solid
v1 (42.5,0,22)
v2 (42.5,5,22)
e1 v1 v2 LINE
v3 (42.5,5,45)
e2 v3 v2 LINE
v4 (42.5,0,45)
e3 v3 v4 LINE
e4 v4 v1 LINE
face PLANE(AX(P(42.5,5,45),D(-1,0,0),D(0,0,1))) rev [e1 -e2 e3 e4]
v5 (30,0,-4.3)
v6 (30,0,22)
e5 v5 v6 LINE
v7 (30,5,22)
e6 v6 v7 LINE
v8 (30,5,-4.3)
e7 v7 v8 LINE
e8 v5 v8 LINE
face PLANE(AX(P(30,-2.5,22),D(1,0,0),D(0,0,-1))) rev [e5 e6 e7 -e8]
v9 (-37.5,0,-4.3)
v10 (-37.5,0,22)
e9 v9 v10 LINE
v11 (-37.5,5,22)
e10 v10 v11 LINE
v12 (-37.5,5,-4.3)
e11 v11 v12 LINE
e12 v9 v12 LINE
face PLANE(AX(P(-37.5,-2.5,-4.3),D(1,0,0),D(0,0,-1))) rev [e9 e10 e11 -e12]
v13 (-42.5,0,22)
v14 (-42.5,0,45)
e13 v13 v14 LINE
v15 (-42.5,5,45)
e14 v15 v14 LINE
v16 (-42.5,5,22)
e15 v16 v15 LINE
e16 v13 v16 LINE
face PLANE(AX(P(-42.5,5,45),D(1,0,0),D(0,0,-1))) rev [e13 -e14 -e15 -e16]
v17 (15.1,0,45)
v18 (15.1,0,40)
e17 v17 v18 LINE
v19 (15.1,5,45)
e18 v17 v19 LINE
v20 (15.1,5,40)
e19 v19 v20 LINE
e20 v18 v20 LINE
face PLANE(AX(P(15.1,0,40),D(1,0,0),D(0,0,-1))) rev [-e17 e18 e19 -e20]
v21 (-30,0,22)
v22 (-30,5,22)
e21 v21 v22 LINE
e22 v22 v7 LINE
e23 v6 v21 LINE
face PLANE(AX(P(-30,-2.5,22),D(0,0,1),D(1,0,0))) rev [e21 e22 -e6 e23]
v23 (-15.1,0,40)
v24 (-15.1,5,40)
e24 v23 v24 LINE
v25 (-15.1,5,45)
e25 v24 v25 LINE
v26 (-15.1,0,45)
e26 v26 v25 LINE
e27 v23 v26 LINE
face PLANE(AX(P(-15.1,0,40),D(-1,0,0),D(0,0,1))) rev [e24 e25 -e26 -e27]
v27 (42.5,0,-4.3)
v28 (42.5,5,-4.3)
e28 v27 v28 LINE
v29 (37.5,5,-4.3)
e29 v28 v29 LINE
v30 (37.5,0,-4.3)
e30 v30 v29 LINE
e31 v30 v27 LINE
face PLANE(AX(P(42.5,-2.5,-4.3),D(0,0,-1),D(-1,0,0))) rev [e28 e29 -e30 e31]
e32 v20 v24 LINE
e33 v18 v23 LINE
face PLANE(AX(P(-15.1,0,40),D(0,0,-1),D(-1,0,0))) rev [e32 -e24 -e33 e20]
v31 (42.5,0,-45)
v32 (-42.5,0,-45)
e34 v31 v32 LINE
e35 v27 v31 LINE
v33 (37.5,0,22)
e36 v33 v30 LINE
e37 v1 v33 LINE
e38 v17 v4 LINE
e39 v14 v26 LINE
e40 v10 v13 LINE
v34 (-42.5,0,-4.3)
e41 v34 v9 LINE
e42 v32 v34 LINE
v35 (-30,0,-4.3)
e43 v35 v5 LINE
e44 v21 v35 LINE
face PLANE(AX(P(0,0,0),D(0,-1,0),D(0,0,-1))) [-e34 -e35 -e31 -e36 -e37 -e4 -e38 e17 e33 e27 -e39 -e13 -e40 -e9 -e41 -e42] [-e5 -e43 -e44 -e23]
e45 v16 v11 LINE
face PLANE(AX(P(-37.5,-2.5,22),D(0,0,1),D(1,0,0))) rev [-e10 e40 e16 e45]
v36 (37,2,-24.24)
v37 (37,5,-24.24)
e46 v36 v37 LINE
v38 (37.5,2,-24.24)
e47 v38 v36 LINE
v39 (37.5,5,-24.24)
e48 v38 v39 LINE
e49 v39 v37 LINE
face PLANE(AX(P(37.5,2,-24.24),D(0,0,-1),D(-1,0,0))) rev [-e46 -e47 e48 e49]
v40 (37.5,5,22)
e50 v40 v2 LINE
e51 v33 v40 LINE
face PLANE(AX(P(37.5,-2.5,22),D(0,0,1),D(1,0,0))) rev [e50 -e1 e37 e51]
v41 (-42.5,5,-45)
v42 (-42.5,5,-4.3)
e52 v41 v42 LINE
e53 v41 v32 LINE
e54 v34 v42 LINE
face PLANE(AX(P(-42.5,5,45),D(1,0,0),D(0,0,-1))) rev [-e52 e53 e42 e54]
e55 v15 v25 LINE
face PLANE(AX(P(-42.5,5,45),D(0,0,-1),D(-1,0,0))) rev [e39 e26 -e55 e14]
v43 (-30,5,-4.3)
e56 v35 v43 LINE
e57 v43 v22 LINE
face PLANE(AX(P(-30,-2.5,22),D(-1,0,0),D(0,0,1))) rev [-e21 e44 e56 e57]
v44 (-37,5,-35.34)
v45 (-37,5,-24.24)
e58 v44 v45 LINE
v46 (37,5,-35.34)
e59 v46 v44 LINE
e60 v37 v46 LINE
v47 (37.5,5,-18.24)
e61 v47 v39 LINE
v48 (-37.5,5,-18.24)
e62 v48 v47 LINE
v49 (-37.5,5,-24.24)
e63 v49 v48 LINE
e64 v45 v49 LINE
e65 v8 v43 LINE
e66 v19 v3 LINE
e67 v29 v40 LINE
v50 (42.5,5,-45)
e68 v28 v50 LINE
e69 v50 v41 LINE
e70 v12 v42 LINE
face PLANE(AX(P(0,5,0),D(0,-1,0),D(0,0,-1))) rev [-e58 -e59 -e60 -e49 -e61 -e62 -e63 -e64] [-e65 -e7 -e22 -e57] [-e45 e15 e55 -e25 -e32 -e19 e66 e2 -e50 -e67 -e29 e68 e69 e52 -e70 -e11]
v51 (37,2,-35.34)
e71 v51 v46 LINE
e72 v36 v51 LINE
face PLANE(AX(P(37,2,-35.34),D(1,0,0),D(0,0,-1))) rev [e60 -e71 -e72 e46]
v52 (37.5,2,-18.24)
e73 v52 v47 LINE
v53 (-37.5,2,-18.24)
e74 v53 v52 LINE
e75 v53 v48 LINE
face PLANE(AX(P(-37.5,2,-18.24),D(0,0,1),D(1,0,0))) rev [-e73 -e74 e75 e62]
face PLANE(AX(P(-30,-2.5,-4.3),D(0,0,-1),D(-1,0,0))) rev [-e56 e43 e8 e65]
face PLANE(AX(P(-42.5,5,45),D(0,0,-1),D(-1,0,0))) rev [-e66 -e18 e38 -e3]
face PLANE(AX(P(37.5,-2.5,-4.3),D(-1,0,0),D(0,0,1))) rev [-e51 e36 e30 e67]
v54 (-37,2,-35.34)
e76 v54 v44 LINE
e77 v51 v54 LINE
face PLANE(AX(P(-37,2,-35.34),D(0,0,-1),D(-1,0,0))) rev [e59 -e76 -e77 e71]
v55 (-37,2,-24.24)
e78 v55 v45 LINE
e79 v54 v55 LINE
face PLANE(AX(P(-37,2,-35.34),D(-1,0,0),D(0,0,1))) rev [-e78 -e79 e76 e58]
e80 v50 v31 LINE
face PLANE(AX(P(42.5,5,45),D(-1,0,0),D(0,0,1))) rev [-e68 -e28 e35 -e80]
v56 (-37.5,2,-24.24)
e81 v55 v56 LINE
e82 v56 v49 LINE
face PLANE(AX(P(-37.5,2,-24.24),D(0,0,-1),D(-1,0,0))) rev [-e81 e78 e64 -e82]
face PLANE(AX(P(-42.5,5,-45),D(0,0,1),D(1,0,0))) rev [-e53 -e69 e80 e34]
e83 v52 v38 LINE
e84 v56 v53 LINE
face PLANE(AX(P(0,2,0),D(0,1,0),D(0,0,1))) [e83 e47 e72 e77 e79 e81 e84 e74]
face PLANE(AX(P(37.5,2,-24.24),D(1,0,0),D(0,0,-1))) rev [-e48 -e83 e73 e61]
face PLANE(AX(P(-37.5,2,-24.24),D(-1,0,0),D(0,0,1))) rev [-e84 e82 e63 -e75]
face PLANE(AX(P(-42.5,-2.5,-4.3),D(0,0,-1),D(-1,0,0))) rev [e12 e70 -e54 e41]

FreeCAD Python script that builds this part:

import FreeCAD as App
import Part
import Sketcher

doc = App.newDocument("Part")
body = doc.addObject("PartDesign::Body", "Body")

sketch1 = doc.addObject("Sketcher::SketchObject", "Sketch")
body.addObject(sketch1)
sketch1.AttachmentSupport = (doc.XZ_Plane, [""])
sketch1.MapMode = "FlatFace"
sketch1.addGeometry([
    Part.LineSegment(App.Vector(-42.5, -45, 0), App.Vector(-42.5, 45, 0)),
    Part.LineSegment(App.Vector(-42.5, 45, 0), App.Vector(42.5, 45, 0)),
    Part.LineSegment(App.Vector(42.5, 45, 0), App.Vector(42.5, -45, 0)),
    Part.LineSegment(App.Vector(42.5, -45, 0), App.Vector(-42.5, -45, 0)),
], False)
sketch1.addConstraint([
    Sketcher.Constraint("Coincident", 0, 2, 1, 1),
    Sketcher.Constraint("Coincident", 1, 2, 2, 1),
    Sketcher.Constraint("Coincident", 2, 2, 3, 1),
    Sketcher.Constraint("Coincident", 3, 2, 0, 1),
    Sketcher.Constraint("Vertical", 0),
    Sketcher.Constraint("Horizontal", 1),
    Sketcher.Constraint("Vertical", 2),
    Sketcher.Constraint("Horizontal", 3),
    Sketcher.Constraint("Symmetric", 0, 2, 2, 2, -1, 1),
    Sketcher.Constraint("DistanceX", 1, 1, 1, 2, 85.0),
    Sketcher.Constraint("DistanceY", 0, 1, 0, 2, 90.0),
])
pad1 = doc.addObject("PartDesign::Pad", "Pad")
body.addObject(pad1)
pad1.Profile = sketch1
pad1.Length = 5
pad1.Reversed = True

sketch2 = doc.addObject("Sketcher::SketchObject", "Sketch001")
body.addObject(sketch2)
sketch2.AttachmentSupport = (doc.XZ_Plane, [""])
sketch2.MapMode = "FlatFace"
sketch2.AttachmentOffset = App.Placement(App.Vector(0, 0, -5), App.Rotation())
sketch2.addGeometry([
    Part.LineSegment(App.Vector(-30, -4.3, 0), App.Vector(-30, 22, 0)),
    Part.LineSegment(App.Vector(-30, 22, 0), App.Vector(30, 22, 0)),
    Part.LineSegment(App.Vector(30, 22, 0), App.Vector(30, -4.3, 0)),
    Part.LineSegment(App.Vector(30, -4.3, 0), App.Vector(-30, -4.3, 0)),
], False)
sketch2.addConstraint([
    Sketcher.Constraint("Coincident", 0, 2, 1, 1),
    Sketcher.Constraint("Coincident", 1, 2, 2, 1),
    Sketcher.Constraint("Coincident", 2, 2, 3, 1),
    Sketcher.Constraint("Coincident", 3, 2, 0, 1),
    Sketcher.Constraint("Vertical", 0),
    Sketcher.Constraint("Horizontal", 1),
    Sketcher.Constraint("Vertical", 2),
    Sketcher.Constraint("Horizontal", 3),
    Sketcher.Constraint("DistanceX", 1, 1, 1, 2, 60.0),
    Sketcher.Constraint("DistanceY", 0, 1, 0, 2, 26.3),
    Sketcher.Constraint("DistanceX", 0, 2, -1, 1, 30.0),
    Sketcher.Constraint("DistanceY", -1, 1, 0, 2, 22.0),
])
pocket1 = doc.addObject("PartDesign::Pocket", "Pocket")
body.addObject(pocket1)
pocket1.Profile = sketch2
pocket1.Length = 7.5
pocket1.Reversed = True

sketch3 = doc.addObject("Sketcher::SketchObject", "Sketch002")
body.addObject(sketch3)
sketch3.AttachmentSupport = (doc.XZ_Plane, [""])
sketch3.MapMode = "FlatFace"
sketch3.AttachmentOffset = App.Placement(App.Vector(0, 0, -5), App.Rotation())
sketch3.addGeometry([
    Part.LineSegment(App.Vector(-42.5, -4.3, 0), App.Vector(-42.5, 22, 0)),
    Part.LineSegment(App.Vector(-42.5, 22, 0), App.Vector(-37.5, 22, 0)),
    Part.LineSegment(App.Vector(-37.5, 22, 0), App.Vector(-37.5, -4.3, 0)),
    Part.LineSegment(App.Vector(-37.5, -4.3, 0), App.Vector(-42.5, -4.3, 0)),
    Part.LineSegment(App.Vector(37.5, -4.3, 0), App.Vector(37.5, 22, 0)),
    Part.LineSegment(App.Vector(37.5, 22, 0), App.Vector(42.5, 22, 0)),
    Part.LineSegment(App.Vector(42.5, 22, 0), App.Vector(42.5, -4.3, 0)),
    Part.LineSegment(App.Vector(42.5, -4.3, 0), App.Vector(37.5, -4.3, 0)),
], False)
sketch3.addConstraint([
    Sketcher.Constraint("Coincident", 0, 2, 1, 1),
    Sketcher.Constraint("Coincident", 1, 2, 2, 1),
    Sketcher.Constraint("Coincident", 2, 2, 3, 1),
    Sketcher.Constraint("Coincident", 3, 2, 0, 1),
    Sketcher.Constraint("Coincident", 4, 2, 5, 1),
    Sketcher.Constraint("Coincident", 5, 2, 6, 1),
    Sketcher.Constraint("Coincident", 6, 2, 7, 1),
    Sketcher.Constraint("Coincident", 7, 2, 4, 1),
    Sketcher.Constraint("Vertical", 0),
    Sketcher.Constraint("Horizontal", 1),
    Sketcher.Constraint("Vertical", 2),
    Sketcher.Constraint("Horizontal", 3),
    Sketcher.Constraint("Vertical", 4),
    Sketcher.Constraint("Horizontal", 5),
    Sketcher.Constraint("Vertical", 6),
    Sketcher.Constraint("Horizontal", 7),
    Sketcher.Constraint("Symmetric", 1, 2, 4, 2, -2),
    Sketcher.Constraint("Symmetric", 3, 2, 6, 2, -2),
    Sketcher.Constraint("DistanceX", 1, 1, 1, 2, 5.0),
    Sketcher.Constraint("DistanceY", 0, 1, 0, 2, 26.3),
    Sketcher.Constraint("DistanceY", -1, 1, 0, 2, 22.0),
    Sketcher.Constraint("DistanceX", 1, 2, 4, 2, 75.0),
])
pocket2 = doc.addObject("PartDesign::Pocket", "Pocket001")
body.addObject(pocket2)
pocket2.Profile = sketch3
pocket2.Length = 7.5
pocket2.Reversed = True

sketch4 = doc.addObject("Sketcher::SketchObject", "Sketch003")
body.addObject(sketch4)
sketch4.AttachmentSupport = (doc.XZ_Plane, [""])
sketch4.MapMode = "FlatFace"
sketch4.AttachmentOffset = App.Placement(App.Vector(0, 0, -5), App.Rotation())
sketch4.addGeometry([
    Part.LineSegment(App.Vector(-15.1, 40, 0), App.Vector(-15.1, 45, 0)),
    Part.LineSegment(App.Vector(-15.1, 45, 0), App.Vector(15.1, 45, 0)),
    Part.LineSegment(App.Vector(15.1, 45, 0), App.Vector(15.1, 40, 0)),
    Part.LineSegment(App.Vector(15.1, 40, 0), App.Vector(-15.1, 40, 0)),
], False)
sketch4.addConstraint([
    Sketcher.Constraint("Coincident", 0, 2, 1, 1),
    Sketcher.Constraint("Coincident", 1, 2, 2, 1),
    Sketcher.Constraint("Coincident", 2, 2, 3, 1),
    Sketcher.Constraint("Coincident", 3, 2, 0, 1),
    Sketcher.Constraint("Vertical", 0),
    Sketcher.Constraint("Horizontal", 1),
    Sketcher.Constraint("Vertical", 2),
    Sketcher.Constraint("Horizontal", 3),
    Sketcher.Constraint("DistanceY", 0, 1, 0, 2, 5.0),
    Sketcher.Constraint("DistanceX", 1, 1, 1, 2, 30.2),
    Sketcher.Constraint("DistanceY", -1, 1, 0, 2, 45.0),
    Sketcher.Constraint("DistanceX", 0, 2, -1, 1, 15.1),
])
pocket3 = doc.addObject("PartDesign::Pocket", "Pocket002")
body.addObject(pocket3)
pocket3.Profile = sketch4
pocket3.Length = 5
pocket3.Reversed = True

sketch5 = doc.addObject("Sketcher::SketchObject", "Sketch004")
body.addObject(sketch5)
sketch5.AttachmentSupport = (doc.XZ_Plane, [""])
sketch5.MapMode = "FlatFace"
sketch5.AttachmentOffset = App.Placement(App.Vector(0, 0, -5), App.Rotation())
sketch5.addGeometry([
    Part.LineSegment(App.Vector(37, -35.34, 0), App.Vector(-37, -35.34, 0)),
    Part.LineSegment(App.Vector(-37, -35.34, 0), App.Vector(-37, -24.24, 0)),
    Part.LineSegment(App.Vector(-37, -24.24, 0), App.Vector(-37.5, -24.24, 0)),
    Part.LineSegment(App.Vector(-37.5, -24.24, 0), App.Vector(-37.5, -18.24, 0)),
    Part.LineSegment(App.Vector(-37.5, -18.24, 0), App.Vector(37.5, -18.24, 0)),
    Part.LineSegment(App.Vector(37.5, -18.24, 0), App.Vector(37.5, -24.24, 0)),
    Part.LineSegment(App.Vector(37.5, -24.24, 0), App.Vector(37, -24.24, 0)),
    Part.LineSegment(App.Vector(37, -24.24, 0), App.Vector(37, -35.34, 0)),
], False)
sketch5.addConstraint([
    Sketcher.Constraint("Coincident", 0, 2, 1, 1),
    Sketcher.Constraint("Coincident", 1, 2, 2, 1),
    Sketcher.Constraint("Coincident", 2, 2, 3, 1),
    Sketcher.Constraint("Coincident", 3, 2, 4, 1),
    Sketcher.Constraint("Coincident", 4, 2, 5, 1),
    Sketcher.Constraint("Coincident", 5, 2, 6, 1),
    Sketcher.Constraint("Coincident", 6, 2, 7, 1),
    Sketcher.Constraint("Coincident", 7, 2, 0, 1),
    Sketcher.Constraint("Horizontal", 0),
    Sketcher.Constraint("Vertical", 1),
    Sketcher.Constraint("Horizontal", 2),
    Sketcher.Constraint("Vertical", 3),
    Sketcher.Constraint("Horizontal", 4),
    Sketcher.Constraint("Vertical", 5),
    Sketcher.Constraint("Horizontal", 6),
    Sketcher.Constraint("Vertical", 7),
    Sketcher.Constraint("Symmetric", 2, 2, 5, 2, -2),
    Sketcher.Constraint("Equal", 2, 6),
    Sketcher.Constraint("DistanceX", 0, 2, 0, 1, 74.0),
    Sketcher.Constraint("DistanceX", 4, 1, 4, 2, 75.0),
    Sketcher.Constraint("DistanceY", 3, 1, 3, 2, 6.0),
    Sketcher.Constraint("DistanceY", 1, 1, 1, 2, 11.1),
    Sketcher.Constraint("DistanceY", 0, 2, -1, 1, 35.34),
])
pocket4 = doc.addObject("PartDesign::Pocket", "Pocket003")
body.addObject(pocket4)
pocket4.Profile = sketch5
pocket4.Length = 3
pocket4.Reversed = True

doc.recompute()
